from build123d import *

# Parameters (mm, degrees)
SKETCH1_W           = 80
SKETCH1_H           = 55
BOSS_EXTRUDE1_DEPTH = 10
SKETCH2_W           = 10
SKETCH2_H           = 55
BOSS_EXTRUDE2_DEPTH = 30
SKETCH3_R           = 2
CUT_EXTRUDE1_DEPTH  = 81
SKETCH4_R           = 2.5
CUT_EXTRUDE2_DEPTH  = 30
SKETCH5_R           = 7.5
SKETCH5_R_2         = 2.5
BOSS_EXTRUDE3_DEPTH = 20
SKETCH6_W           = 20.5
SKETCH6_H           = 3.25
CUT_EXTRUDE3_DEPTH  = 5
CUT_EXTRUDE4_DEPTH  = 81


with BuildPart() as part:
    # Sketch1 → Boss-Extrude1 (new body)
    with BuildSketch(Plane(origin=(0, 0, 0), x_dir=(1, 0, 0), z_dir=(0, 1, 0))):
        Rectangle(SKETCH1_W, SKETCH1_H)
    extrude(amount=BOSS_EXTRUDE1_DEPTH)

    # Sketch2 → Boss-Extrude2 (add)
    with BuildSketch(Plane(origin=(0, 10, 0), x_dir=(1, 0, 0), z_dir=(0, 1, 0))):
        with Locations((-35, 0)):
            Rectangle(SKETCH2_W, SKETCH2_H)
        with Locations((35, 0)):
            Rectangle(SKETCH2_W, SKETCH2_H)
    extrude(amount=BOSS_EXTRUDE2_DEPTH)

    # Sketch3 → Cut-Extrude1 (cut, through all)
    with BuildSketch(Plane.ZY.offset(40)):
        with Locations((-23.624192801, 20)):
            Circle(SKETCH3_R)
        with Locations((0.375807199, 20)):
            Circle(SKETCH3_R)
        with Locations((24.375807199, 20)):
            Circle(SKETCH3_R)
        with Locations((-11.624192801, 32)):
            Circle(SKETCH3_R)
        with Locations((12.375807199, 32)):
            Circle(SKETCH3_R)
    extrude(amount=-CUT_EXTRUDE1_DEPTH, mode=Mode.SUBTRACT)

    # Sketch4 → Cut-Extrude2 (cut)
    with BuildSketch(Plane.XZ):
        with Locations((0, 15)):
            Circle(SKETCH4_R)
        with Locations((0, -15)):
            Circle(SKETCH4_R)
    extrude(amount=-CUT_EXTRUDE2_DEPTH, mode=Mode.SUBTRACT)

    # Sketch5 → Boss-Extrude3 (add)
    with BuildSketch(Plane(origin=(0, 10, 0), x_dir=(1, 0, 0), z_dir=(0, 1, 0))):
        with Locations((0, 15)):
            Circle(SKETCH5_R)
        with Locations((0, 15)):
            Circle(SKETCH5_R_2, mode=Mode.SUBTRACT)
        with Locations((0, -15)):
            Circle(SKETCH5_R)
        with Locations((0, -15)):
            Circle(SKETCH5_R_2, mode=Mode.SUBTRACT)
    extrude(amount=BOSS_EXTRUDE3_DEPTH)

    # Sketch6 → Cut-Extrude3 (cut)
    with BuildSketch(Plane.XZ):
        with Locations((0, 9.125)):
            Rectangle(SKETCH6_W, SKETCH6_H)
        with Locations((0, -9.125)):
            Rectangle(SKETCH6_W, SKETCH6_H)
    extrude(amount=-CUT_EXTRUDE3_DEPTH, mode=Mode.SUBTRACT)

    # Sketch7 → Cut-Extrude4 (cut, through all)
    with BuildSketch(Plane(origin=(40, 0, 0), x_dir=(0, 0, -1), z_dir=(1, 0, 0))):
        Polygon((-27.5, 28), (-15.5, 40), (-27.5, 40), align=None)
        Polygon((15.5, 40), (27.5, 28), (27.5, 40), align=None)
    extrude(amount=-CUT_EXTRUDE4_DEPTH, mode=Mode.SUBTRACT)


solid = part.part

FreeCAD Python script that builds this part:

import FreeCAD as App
import Part
import Sketcher
Q = App.Units.Quantity

doc = App.newDocument("Part")
params = doc.addObject("Spreadsheet::Sheet", "Params")
for row, (alias, value) in enumerate([
    ("sketch1_width", "80 mm"),
    ("sketch1_height", "55 mm"),
    ("pad1_length", "10 mm"),
    ("sketch2_width", "10 mm"),
    ("sketch2_height", "55 mm"),
    ("pad2_length", "30 mm"),
    ("sketch3_diameter", "4 mm"),
    ("sketch4_diameter", "5 mm"),
    ("pocket2_length", "30 mm"),
    ("sketch5_diameter", "15 mm"),
    ("sketch5_diameter2", "5 mm"),
    ("pad3_length", "20 mm"),
    ("sketch6_width", "20.5 mm"),
    ("sketch6_height", "3.25 mm"),
    ("pocket3_length", "5 mm"),
    ("sketch7_width", "12 mm"),
], start=1):
    params.set(f"A{row}", alias)
    params.set(f"B{row}", "=" + value)
    params.setAlias(f"B{row}", alias)

body = doc.addObject("PartDesign::Body", "Body")

# Sketch on XZ plane
sketch1 = body.newObject("Sketcher::SketchObject", "Sketch")
sketch1.AttachmentSupport = (doc.getObject("XZ_Plane"), [""])
sketch1.MapMode = "FlatFace"
sketch1.addGeometry([
    Part.LineSegment(App.Vector(-40, -28, 0), App.Vector(-40, 28, 0)),
    Part.LineSegment(App.Vector(-40, 28, 0), App.Vector(40, 28, 0)),
    Part.LineSegment(App.Vector(40, 28, 0), App.Vector(40, -28, 0)),
    Part.LineSegment(App.Vector(40, -28, 0), App.Vector(-40, -28, 0)),
], False)
sketch1.addConstraint([
    Sketcher.Constraint("Coincident", 0, 2, 1, 1),
    Sketcher.Constraint("Coincident", 1, 2, 2, 1),
    Sketcher.Constraint("Coincident", 2, 2, 3, 1),
    Sketcher.Constraint("Coincident", 3, 2, 0, 1),
    Sketcher.Constraint("Vertical", 0),
    Sketcher.Constraint("Horizontal", 1),
    Sketcher.Constraint("Vertical", 2),
    Sketcher.Constraint("Horizontal", 3),
    Sketcher.Constraint("Symmetric", 0, 2, 2, 2, -1, 1),
    Sketcher.Constraint("DistanceX", 1, 1, 1, 2, Q("80 mm")),
    Sketcher.Constraint("DistanceY", 0, 1, 0, 2, Q("55 mm")),
])
sketch1.setExpression("Constraints[9]", "Params.sketch1_width")
sketch1.setExpression("Constraints[10]", "Params.sketch1_height")
pad1 = body.newObject("PartDesign::Pad", "Pad")
pad1.Profile = sketch1
pad1.setExpression("Length", "Params.pad1_length")
pad1.Reversed = True

# Sketch on XZ plane
sketch2 = body.newObject("Sketcher::SketchObject", "Sketch001")
sketch2.AttachmentSupport = (doc.getObject("XZ_Plane"), [""])
sketch2.MapMode = "FlatFace"
sketch2.AttachmentOffset = App.Placement(App.Vector(0, 0, -10), App.Rotation())
sketch2.addGeometry([
    Part.LineSegment(App.Vector(-40, -28, 0), App.Vector(-40, 28, 0)),  # 0
    Part.LineSegment(App.Vector(-40, 28, 0), App.Vector(-30, 28, 0)),  # 1
    Part.LineSegment(App.Vector(-30, 28, 0), App.Vector(-30, -28, 0)),  # 2
    Part.LineSegment(App.Vector(-30, -28, 0), App.Vector(-40, -28, 0)),  # 3
    Part.LineSegment(App.Vector(30, -28, 0), App.Vector(30, 28, 0)),  # 4
    Part.LineSegment(App.Vector(30, 28, 0), App.Vector(40, 28, 0)),  # 5
    Part.LineSegment(App.Vector(40, 28, 0), App.Vector(40, -28, 0)),  # 6
    Part.LineSegment(App.Vector(40, -28, 0), App.Vector(30, -28, 0)),  # 7
], False)
sketch2.addConstraint([
    Sketcher.Constraint("Coincident", 0, 2, 1, 1),
    Sketcher.Constraint("Coincident", 1, 2, 2, 1),
    Sketcher.Constraint("Coincident", 2, 2, 3, 1),
    Sketcher.Constraint("Coincident", 3, 2, 0, 1),
    Sketcher.Constraint("Coincident", 4, 2, 5, 1),
    Sketcher.Constraint("Coincident", 5, 2, 6, 1),
    Sketcher.Constraint("Coincident", 6, 2, 7, 1),
    Sketcher.Constraint("Coincident", 7, 2, 4, 1),
    Sketcher.Constraint("Vertical", 0),
    Sketcher.Constraint("Horizontal", 1),
    Sketcher.Constraint("Vertical", 2),
    Sketcher.Constraint("Horizontal", 3),
    Sketcher.Constraint("Vertical", 4),
    Sketcher.Constraint("Horizontal", 5),
    Sketcher.Constraint("Vertical", 6),
    Sketcher.Constraint("Horizontal", 7),
    Sketcher.Constraint("Symmetric", 2, 2, 4, 2, -1, 1),
    Sketcher.Constraint("Symmetric", 0, 2, 6, 2, -1, 1),
    Sketcher.Constraint("Horizontal", 1, 2, 4, 2),
    Sketcher.Constraint("DistanceX", 1, 1, 1, 2, Q("10 mm")),
    Sketcher.Constraint("DistanceY", 0, 1, 0, 2, Q("55 mm")),
    Sketcher.Constraint("DistanceX", 0, 2, -1, 1, Q("40 mm")),
])
sketch2.setExpression("Constraints[19]", "Params.sketch2_width")
sketch2.setExpression("Constraints[20]", "Params.sketch2_height")
pad2 = body.newObject("PartDesign::Pad", "Pad001")
pad2.Profile = sketch2
pad2.setExpression("Length", "Params.pad2_length")
pad2.Reversed = True

# Sketch on YZ plane
sketch3 = body.newObject("Sketcher::SketchObject", "Sketch002")
sketch3.AttachmentSupport = (doc.getObject("YZ_Plane"), [""])
sketch3.MapMode = "FlatFace"
sketch3.AttachmentOffset = App.Placement(App.Vector(0, 0, -40), App.Rotation())
sketch3.addGeometry([
    Part.Circle(App.Vector(20, -23.6, 0), App.Vector(0, 0, 1), 2),  # 0
    Part.Circle(App.Vector(20, 0.4, 0), App.Vector(0, 0, 1), 2),  # 1
    Part.Circle(App.Vector(20, 24.4, 0), App.Vector(0, 0, 1), 2),  # 2
    Part.Circle(App.Vector(32, -11.6, 0), App.Vector(0, 0, 1), 2),  # 3
    Part.Circle(App.Vector(32, 12.4, 0), App.Vector(0, 0, 1), 2),  # 4
], False)
sketch3.addConstraint([
    Sketcher.Constraint("Equal", 0, 1),
    Sketcher.Constraint("Equal", 1, 2),
    Sketcher.Constraint("Equal", 2, 3),
    Sketcher.Constraint("Equal", 3, 4),
    Sketcher.Constraint("Vertical", 0, 3, 1, 3),
    Sketcher.Constraint("Vertical", 1, 3, 2, 3),
    Sketcher.Constraint("Vertical", 3, 3, 4, 3),
    Sketcher.Constraint("Diameter", 0, Q("4 mm")),
    Sketcher.Constraint("DistanceX", -1, 1, 0, 3, Q("20 mm")),
    Sketcher.Constraint("DistanceX", -1, 1, 3, 3, Q("32 mm")),
    Sketcher.Constraint("DistanceY", 0, 3, 1, 3, Q("24 mm")),
    Sketcher.Constraint("DistanceY", 1, 3, 2, 3, Q("24 mm")),
    Sketcher.Constraint("DistanceY", 0, 3, 3, 3, Q("12 mm")),
    Sketcher.Constraint("DistanceY", 1, 3, 4, 3, Q("12 mm")),
    Sketcher.Constraint("DistanceY", 0, 3, -1, 1, Q("23.624193 mm")),
])
sketch3.setExpression("Constraints[7]", "Params.sketch3_diameter")
pocket1 = body.newObject("PartDesign::Pocket", "Pocket")
pocket1.Profile = sketch3
pocket1.Type = "ThroughAll"
pocket1.Reversed = True

# Sketch on XZ plane
sketch4 = body.newObject("Sketcher::SketchObject", "Sketch003")
sketch4.AttachmentSupport = (doc.getObject("XZ_Plane"), [""])
sketch4.MapMode = "FlatFace"
sketch4.addGeometry([
    Part.Circle(App.Vector(0, 15, 0), App.Vector(0, 0, 1), 2.5),
    Part.Circle(App.Vector(0, -15, 0), App.Vector(0, 0, 1), 2.5),
], False)
sketch4.addConstraint([
    Sketcher.Constraint("Equal", 0, 1),
    Sketcher.Constraint("Symmetric", 0, 3, 1, 3, -1, 1),
    Sketcher.Constraint("PointOnObject", 0, 3, -2),
    Sketcher.Constraint("Diameter", 0, Q("5 mm")),
    Sketcher.Constraint("DistanceY", -1, 1, 0, 3, Q("15 mm")),
])
sketch4.setExpression("Constraints[3]", "Params.sketch4_diameter")
pocket2 = body.newObject("PartDesign::Pocket", "Pocket001")
pocket2.Profile = sketch4
pocket2.setExpression("Length", "Params.pocket2_length")

# Sketch on XZ plane
sketch5 = body.newObject("Sketcher::SketchObject", "Sketch004")
sketch5.AttachmentSupport = (doc.getObject("XZ_Plane"), [""])
sketch5.MapMode = "FlatFace"
sketch5.AttachmentOffset = App.Placement(App.Vector(0, 0, -10), App.Rotation())
sketch5.addGeometry([
    Part.Circle(App.Vector(0, -15, 0), App.Vector(0, 0, 1), 7.5),
    Part.Circle(App.Vector(0, -15, 0), App.Vector(0, 0, 1), 2.5),
    Part.Circle(App.Vector(0, 15, 0), App.Vector(0, 0, 1), 7.5),
    Part.Circle(App.Vector(0, 15, 0), App.Vector(0, 0, 1), 2.5),
], False)
sketch5.addConstraint([
    Sketcher.Constraint("Coincident", 1, 3, 0, 3),
    Sketcher.Constraint("Coincident", 3, 3, 2, 3),
    Sketcher.Constraint("Equal", 0, 2),
    Sketcher.Constraint("Equal", 1, 3),
    Sketcher.Constraint("Symmetric", 0, 3, 2, 3, -1, 1),
    Sketcher.Constraint("PointOnObject", 0, 3, -2),
    Sketcher.Constraint("Diameter", 0, Q("15 mm")),
    Sketcher.Constraint("Diameter", 1, Q("5 mm")),
    Sketcher.Constraint("DistanceY", 0, 3, -1, 1, Q("15 mm")),
])
sketch5.setExpression("Constraints[6]", "Params.sketch5_diameter")
sketch5.setExpression("Constraints[7]", "Params.sketch5_diameter2")
pad3 = body.newObject("PartDesign::Pad", "Pad002")
pad3.Profile = sketch5
pad3.setExpression("Length", "Params.pad3_length")
pad3.Reversed = True

# Sketch on XZ plane
sketch6 = body.newObject("Sketcher::SketchObject", "Sketch005")
sketch6.AttachmentSupport = (doc.getObject("XZ_Plane"), [""])
sketch6.MapMode = "FlatFace"
sketch6.addGeometry([
    Part.LineSegment(App.Vector(-10.2, 10.8, 0), App.Vector(-10.2, 7.5, 0)),  # 0
    Part.LineSegment(App.Vector(-10.2, 7.5, 0), App.Vector(10.2, 7.5, 0)),  # 1
    Part.LineSegment(App.Vector(10.2, 7.5, 0), App.Vector(10.2, 10.8, 0)),  # 2
    Part.LineSegment(App.Vector(10.2, 10.8, 0), App.Vector(-10.2, 10.8, 0)),  # 3
    Part.LineSegment(App.Vector(-10.2, -7.5, 0), App.Vector(-10.2, -10.8, 0)),  # 4
    Part.LineSegment(App.Vector(-10.2, -10.8, 0), App.Vector(10.2, -10.8, 0)),  # 5
    Part.LineSegment(App.Vector(10.2, -10.8, 0), App.Vector(10.2, -7.5, 0)),  # 6
    Part.LineSegment(App.Vector(10.2, -7.5, 0), App.Vector(-10.2, -7.5, 0)),  # 7
], False)
sketch6.addConstraint([
    Sketcher.Constraint("Coincident", 0, 2, 1, 1),
    Sketcher.Constraint("Coincident", 1, 2, 2, 1),
    Sketcher.Constraint("Coincident", 2, 2, 3, 1),
    Sketcher.Constraint("Coincident", 3, 2, 0, 1),
    Sketcher.Constraint("Coincident", 4, 2, 5, 1),
    Sketcher.Constraint("Coincident", 5, 2, 6, 1),
    Sketcher.Constraint("Coincident", 6, 2, 7, 1),
    Sketcher.Constraint("Coincident", 7, 2, 4, 1),
    Sketcher.Constraint("Vertical", 0),
    Sketcher.Constraint("Horizontal", 1),
    Sketcher.Constraint("Vertical", 2),
    Sketcher.Constraint("Horizontal", 3),
    Sketcher.Constraint("Vertical", 4),
    Sketcher.Constraint("Horizontal", 5),
    Sketcher.Constraint("Vertical", 6),
    Sketcher.Constraint("Horizontal", 7),
    Sketcher.Constraint("Symmetric", 2, 2, 4, 2, -1, 1),
    Sketcher.Constraint("Symmetric", 0, 2, 6, 2, -1, 1),
    Sketcher.Constraint("Vertical", 3, 2, 4, 2),
    Sketcher.Constraint("DistanceX", 1, 1, 1, 2, Q("20.5 mm")),
    Sketcher.Constraint("DistanceY", 6, 2, 1, 2, Q("15 mm")),
    Sketcher.Constraint("DistanceY", 0, 2, 0, 1, Q("3.25 mm")),
])
sketch6.setExpression("Constraints[19]", "Params.sketch6_width")
sketch6.setExpression("Constraints[21]", "Params.sketch6_height")
pocket3 = body.newObject("PartDesign::Pocket", "Pocket002")
pocket3.Profile = sketch6
pocket3.setExpression("Length", "Params.pocket3_length")

# Sketch on YZ plane
sketch7 = body.newObject("Sketcher::SketchObject", "Sketch006")
sketch7.AttachmentSupport = (doc.getObject("YZ_Plane"), [""])
sketch7.MapMode = "FlatFace"
sketch7.AttachmentOffset = App.Placement(App.Vector(0, 0, 40), App.Rotation())
sketch7.addGeometry([
    Part.LineSegment(App.Vector(28, 28, 0), App.Vector(40, 16, 0)),  # 0
    Part.LineSegment(App.Vector(40, 16, 0), App.Vector(40, 28, 0)),  # 1
    Part.LineSegment(App.Vector(40, 28, 0), App.Vector(28, 28, 0)),  # 2
    Part.LineSegment(App.Vector(40, -16, 0), App.Vector(28, -28, 0)),  # 3
    Part.LineSegment(App.Vector(28, -28, 0), App.Vector(40, -28, 0)),  # 4
    Part.LineSegment(App.Vector(40, -28, 0), App.Vector(40, -16, 0)),  # 5
], False)
sketch7.addConstraint([
    Sketcher.Constraint("Coincident", 0, 2, 1, 1),
    Sketcher.Constraint("Coincident", 1, 2, 2, 1),
    Sketcher.Constraint("Coincident", 2, 2, 0, 1),
    Sketcher.Constraint("Coincident", 3, 2, 4, 1),
    Sketcher.Constraint("Coincident", 4, 2, 5, 1),
    Sketcher.Constraint("Coincident", 5, 2, 3, 1),
    Sketcher.Constraint("Vertical", 1),
    Sketcher.Constraint("Horizontal", 2),
    Sketcher.Constraint("Horizontal", 4),
    Sketcher.Constraint("Vertical", 5),
    Sketcher.Constraint("Symmetric", 2, 2, 3, 2, -1),
    Sketcher.Constraint("Symmetric", 0, 2, 5, 2, -1),
    Sketcher.Constraint("Perpendicular", 0, 3),
    Sketcher.Constraint("DistanceX", 2, 2, 2, 1, Q("12 mm")),
    Sketcher.Constraint("DistanceX", -1, 1, 0, 2, Q("40 mm")),
    Sketcher.Constraint("DistanceY", 3, 2, 0, 2, Q("43 mm")),
])
sketch7.setExpression("Constraints[13]", "Params.sketch7_width")
pocket4 = body.newObject("PartDesign::Pocket", "Pocket003")
pocket4.Profile = sketch7
pocket4.Type = "ThroughAll"

doc.recompute()
